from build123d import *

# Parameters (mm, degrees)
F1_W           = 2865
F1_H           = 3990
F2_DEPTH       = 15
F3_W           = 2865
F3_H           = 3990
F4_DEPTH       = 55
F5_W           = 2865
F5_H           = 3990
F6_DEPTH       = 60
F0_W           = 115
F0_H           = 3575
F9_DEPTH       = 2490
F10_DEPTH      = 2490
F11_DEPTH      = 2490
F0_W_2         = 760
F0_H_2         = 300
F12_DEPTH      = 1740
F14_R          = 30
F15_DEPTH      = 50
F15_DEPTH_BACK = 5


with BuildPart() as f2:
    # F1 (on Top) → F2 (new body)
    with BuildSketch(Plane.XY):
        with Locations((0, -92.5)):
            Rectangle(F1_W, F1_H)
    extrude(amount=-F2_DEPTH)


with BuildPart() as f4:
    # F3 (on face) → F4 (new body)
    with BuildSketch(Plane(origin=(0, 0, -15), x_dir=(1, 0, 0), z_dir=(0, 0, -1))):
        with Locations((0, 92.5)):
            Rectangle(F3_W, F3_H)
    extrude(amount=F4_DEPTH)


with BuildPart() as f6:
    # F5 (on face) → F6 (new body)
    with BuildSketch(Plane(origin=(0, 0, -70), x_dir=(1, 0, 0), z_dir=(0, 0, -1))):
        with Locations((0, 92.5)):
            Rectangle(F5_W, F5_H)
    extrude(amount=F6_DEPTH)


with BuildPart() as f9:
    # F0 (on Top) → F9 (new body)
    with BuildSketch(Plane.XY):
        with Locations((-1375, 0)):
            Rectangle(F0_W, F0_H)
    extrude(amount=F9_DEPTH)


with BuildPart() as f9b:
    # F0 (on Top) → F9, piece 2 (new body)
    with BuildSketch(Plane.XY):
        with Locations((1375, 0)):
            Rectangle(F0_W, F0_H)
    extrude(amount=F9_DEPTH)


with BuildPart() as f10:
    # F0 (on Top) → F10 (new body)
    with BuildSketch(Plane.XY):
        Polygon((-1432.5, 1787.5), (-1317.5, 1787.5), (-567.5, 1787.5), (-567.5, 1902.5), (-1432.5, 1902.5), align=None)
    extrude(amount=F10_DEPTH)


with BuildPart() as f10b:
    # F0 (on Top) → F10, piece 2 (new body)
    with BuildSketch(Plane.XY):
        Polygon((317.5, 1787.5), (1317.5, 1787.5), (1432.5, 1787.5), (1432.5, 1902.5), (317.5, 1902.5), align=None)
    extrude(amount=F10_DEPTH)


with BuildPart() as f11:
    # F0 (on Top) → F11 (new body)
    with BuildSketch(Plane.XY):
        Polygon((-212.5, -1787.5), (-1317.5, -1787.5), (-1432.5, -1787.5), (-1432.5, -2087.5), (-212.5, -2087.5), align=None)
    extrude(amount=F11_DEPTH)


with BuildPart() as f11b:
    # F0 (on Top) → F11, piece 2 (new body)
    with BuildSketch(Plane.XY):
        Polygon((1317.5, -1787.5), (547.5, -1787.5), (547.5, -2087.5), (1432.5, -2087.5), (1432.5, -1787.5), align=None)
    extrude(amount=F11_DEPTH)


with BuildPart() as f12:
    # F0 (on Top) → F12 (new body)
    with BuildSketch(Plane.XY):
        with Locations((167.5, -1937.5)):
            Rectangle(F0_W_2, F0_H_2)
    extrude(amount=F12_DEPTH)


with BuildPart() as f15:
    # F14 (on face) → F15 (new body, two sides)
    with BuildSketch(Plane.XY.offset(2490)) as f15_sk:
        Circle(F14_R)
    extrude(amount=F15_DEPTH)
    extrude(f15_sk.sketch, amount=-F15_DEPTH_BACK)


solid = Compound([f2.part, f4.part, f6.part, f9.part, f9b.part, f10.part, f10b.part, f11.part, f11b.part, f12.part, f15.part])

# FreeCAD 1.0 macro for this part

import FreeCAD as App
import Part
import Sketcher

V = App.Vector
Q = App.Units.Quantity


def add_polygon(sketch, points):
    """Adds a closed chain of lines whose ends are joined by coincident constraints."""
    first, n = sketch.GeometryCount, len(points)
    for a, b in zip(points, points[1:] + points[:1]):
        sketch.addGeometry(Part.LineSegment(App.Vector(*a, 0), App.Vector(*b, 0)), False)
    for i in range(n):
        sketch.addConstraint(Sketcher.Constraint("Coincident", first + i, 2, first + (i + 1) % n, 1))

doc = App.newDocument("Part")
params = doc.addObject("Spreadsheet::Sheet", "Params")
for row, (alias, value) in enumerate([
    ("sketch1_width", "2865 mm"),
    ("sketch1_height", "3990 mm"),
    ("pad1_length", "15 mm"),
    ("sketch2_width", "2865 mm"),
    ("sketch2_height", "3990 mm"),
    ("pad2_length", "55 mm"),
    ("sketch3_width", "2865 mm"),
    ("sketch3_height", "3990 mm"),
    ("pad3_length", "60 mm"),
    ("sketch4_width", "115 mm"),
    ("sketch4_height", "3575 mm"),
    ("pad4_length", "2490 mm"),
    ("sketch5_width", "115 mm"),
    ("sketch5_height", "3575 mm"),
    ("pad5_length", "2490 mm"),
    ("sketch6_width", "865 mm"),
    ("sketch6_height", "115 mm"),
    ("pad6_length", "2490 mm"),
    ("sketch7_width", "1115 mm"),
    ("sketch7_height", "115 mm"),
    ("pad7_length", "2490 mm"),
    ("sketch8_width", "1220 mm"),
    ("sketch8_height", "300 mm"),
    ("pad8_length", "2490 mm"),
    ("sketch9_width", "885 mm"),
    ("sketch9_height", "300 mm"),
    ("pad9_length", "2490 mm"),
    ("sketch10_width", "760 mm"),
    ("sketch10_height", "300 mm"),
    ("pad10_length", "1740 mm"),
    ("sketch11_diameter", "60 mm"),
    ("pad11_length", "50 mm"),
    ("pad11_length2", "5 mm"),
], start=1):
    params.set(f"A{row}", alias)
    params.set(f"B{row}", "=" + value)
    params.setAlias(f"B{row}", alias)

body = doc.addObject("PartDesign::Body", "Body")

sketch1 = body.newObject("Sketcher::SketchObject", "Sketch")
sketch1.AttachmentSupport = (doc.getObject("XY_Plane"), [""])
sketch1.MapMode = "FlatFace"
add_polygon(sketch1, [(-1432.5, 1902.5), (-1432.5, -2087.5), (1432.5, -2087.5), (1432.5, 1902.5)])
sketch1.addConstraint([
    Sketcher.Constraint("Vertical", 0),
    Sketcher.Constraint("Horizontal", 1),
    Sketcher.Constraint("Vertical", 2),
    Sketcher.Constraint("Horizontal", 3),
    Sketcher.Constraint("DistanceX", 1, 1, 1, 2, Q("2865 mm")),
    Sketcher.Constraint("DistanceY", 0, 2, 0, 1, Q("3990 mm")),
    Sketcher.Constraint("DistanceX", 0, 2, -1, 1, Q("1432.5 mm")),
    Sketcher.Constraint("DistanceY", 0, 2, -1, 1, Q("2087.5 mm")),
])
sketch1.setExpression("Constraints[8]", "Params.sketch1_width")
sketch1.setExpression("Constraints[9]", "Params.sketch1_height")
pad1 = body.newObject("PartDesign::Pad", "Pad")
pad1.Profile = sketch1
pad1.setExpression("Length", "Params.pad1_length")
pad1.Reversed = True
body2 = doc.addObject("PartDesign::Body", "Body001")

sketch2 = body2.newObject("Sketcher::SketchObject", "Sketch001")
sketch2.AttachmentSupport = (doc.getObject("XY_Plane001"), [""])
sketch2.MapMode = "FlatFace"
sketch2.AttachmentOffset = App.Placement(V(0, 0, -15), App.Rotation())
add_polygon(sketch2, [(-1432.5, -2087.5), (-1432.5, 1902.5), (1432.5, 1902.5), (1432.5, -2087.5)])
sketch2.addConstraint([
    Sketcher.Constraint("Vertical", 0),
    Sketcher.Constraint("Horizontal", 1),
    Sketcher.Constraint("Vertical", 2),
    Sketcher.Constraint("Horizontal", 3),
    Sketcher.Constraint("DistanceX", 1, 1, 1, 2, Q("2865 mm")),
    Sketcher.Constraint("DistanceY", 0, 1, 0, 2, Q("3990 mm")),
    Sketcher.Constraint("DistanceX", 0, 2, -1, 1, Q("1432.5 mm")),
    Sketcher.Constraint("DistanceY", -1, 1, 0, 2, Q("1902.5 mm")),
])
sketch2.setExpression("Constraints[8]", "Params.sketch2_width")
sketch2.setExpression("Constraints[9]", "Params.sketch2_height")
pad2 = body2.newObject("PartDesign::Pad", "Pad001")
pad2.Profile = sketch2
pad2.setExpression("Length", "Params.pad2_length")
pad2.Reversed = True
body3 = doc.addObject("PartDesign::Body", "Body002")

sketch3 = body3.newObject("Sketcher::SketchObject", "Sketch002")
sketch3.AttachmentSupport = (doc.getObject("XY_Plane002"), [""])
sketch3.MapMode = "FlatFace"
sketch3.AttachmentOffset = App.Placement(V(0, 0, -70), App.Rotation())
add_polygon(sketch3, [(-1432.5, -2087.5), (-1432.5, 1902.5), (1432.5, 1902.5), (1432.5, -2087.5)])
sketch3.addConstraint([
    Sketcher.Constraint("Vertical", 0),
    Sketcher.Constraint("Horizontal", 1),
    Sketcher.Constraint("Vertical", 2),
    Sketcher.Constraint("Horizontal", 3),
    Sketcher.Constraint("DistanceX", 1, 1, 1, 2, Q("2865 mm")),
    Sketcher.Constraint("DistanceY", 0, 1, 0, 2, Q("3990 mm")),
    Sketcher.Constraint("DistanceX", 0, 2, -1, 1, Q("1432.5 mm")),
    Sketcher.Constraint("DistanceY", -1, 1, 0, 2, Q("1902.5 mm")),
])
sketch3.setExpression("Constraints[8]", "Params.sketch3_width")
sketch3.setExpression("Constraints[9]", "Params.sketch3_height")
pad3 = body3.newObject("PartDesign::Pad", "Pad002")
pad3.Profile = sketch3
pad3.setExpression("Length", "Params.pad3_length")
pad3.Reversed = True
body4 = doc.addObject("PartDesign::Body", "Body003")

sketch4 = body4.newObject("Sketcher::SketchObject", "Sketch003")
sketch4.AttachmentSupport = (doc.getObject("XY_Plane003"), [""])
sketch4.MapMode = "FlatFace"
add_polygon(sketch4, [(-1432.5, 1787.5), (-1432.5, -1787.5), (-1317.5, -1787.5), (-1317.5, 1787.5)])
sketch4.addConstraint([
    Sketcher.Constraint("Vertical", 0),
    Sketcher.Constraint("Horizontal", 1),
    Sketcher.Constraint("Vertical", 2),
    Sketcher.Constraint("Horizontal", 3),
    Sketcher.Constraint("DistanceX", 1, 1, 1, 2, Q("115 mm")),
    Sketcher.Constraint("DistanceY", 0, 2, 0, 1, Q("3575 mm")),
    Sketcher.Constraint("DistanceX", 0, 2, -1, 1, Q("1432.5 mm")),
    Sketcher.Constraint("DistanceY", 0, 2, -1, 1, Q("1787.5 mm")),
])
sketch4.setExpression("Constraints[8]", "Params.sketch4_width")
sketch4.setExpression("Constraints[9]", "Params.sketch4_height")
pad4 = body4.newObject("PartDesign::Pad", "Pad003")
pad4.Profile = sketch4
pad4.setExpression("Length", "Params.pad4_length")
body5 = doc.addObject("PartDesign::Body", "Body004")

sketch5 = body5.newObject("Sketcher::SketchObject", "Sketch004")
sketch5.AttachmentSupport = (doc.getObject("XY_Plane004"), [""])
sketch5.MapMode = "FlatFace"
add_polygon(sketch5, [(1317.5, 1787.5), (1317.5, -1787.5), (1432.5, -1787.5), (1432.5, 1787.5)])
sketch5.addConstraint([
    Sketcher.Constraint("Vertical", 0),
    Sketcher.Constraint("Horizontal", 1),
    Sketcher.Constraint("Vertical", 2),
    Sketcher.Constraint("Horizontal", 3),
    Sketcher.Constraint("DistanceX", 1, 1, 1, 2, Q("115 mm")),
    Sketcher.Constraint("DistanceY", 0, 2, 0, 1, Q("3575 mm")),
    Sketcher.Constraint("DistanceX", -1, 1, 0, 2, Q("1317.5 mm")),
    Sketcher.Constraint("DistanceY", 0, 2, -1, 1, Q("1787.5 mm")),
])
sketch5.setExpression("Constraints[8]", "Params.sketch5_width")
sketch5.setExpression("Constraints[9]", "Params.sketch5_height")
pad5 = body5.newObject("PartDesign::Pad", "Pad004")
pad5.Profile = sketch5
pad5.setExpression("Length", "Params.pad5_length")
body6 = doc.addObject("PartDesign::Body", "Body005")

sketch6 = body6.newObject("Sketcher::SketchObject", "Sketch005")
sketch6.AttachmentSupport = (doc.getObject("XY_Plane005"), [""])
sketch6.MapMode = "FlatFace"
add_polygon(sketch6, [(-1432.5, 1787.5), (-567.5, 1787.5), (-567.5, 1902.5), (-1432.5, 1902.5)])
sketch6.addConstraint([
    Sketcher.Constraint("Horizontal", 0),
    Sketcher.Constraint("Vertical", 1),
    Sketcher.Constraint("Horizontal", 2),
    Sketcher.Constraint("Vertical", 3),
    Sketcher.Constraint("DistanceX", 0, 1, 0, 2, Q("865 mm")),
    Sketcher.Constraint("DistanceY", 1, 1, 1, 2, Q("115 mm")),
    Sketcher.Constraint("DistanceX", 0, 2, -1, 1, Q("567.5 mm")),
    Sketcher.Constraint("DistanceY", -1, 1, 0, 2, Q("1787.5 mm")),
])
sketch6.setExpression("Constraints[8]", "Params.sketch6_width")
sketch6.setExpression("Constraints[9]", "Params.sketch6_height")
pad6 = body6.newObject("PartDesign::Pad", "Pad005")
pad6.Profile = sketch6
pad6.setExpression("Length", "Params.pad6_length")
body7 = doc.addObject("PartDesign::Body", "Body006")

sketch7 = body7.newObject("Sketcher::SketchObject", "Sketch006")
sketch7.AttachmentSupport = (doc.getObject("XY_Plane006"), [""])
sketch7.MapMode = "FlatFace"
add_polygon(sketch7, [(317.5, 1787.5), (1432.5, 1787.5), (1432.5, 1902.5), (317.5, 1902.5)])
sketch7.addConstraint([
    Sketcher.Constraint("Horizontal", 0),
    Sketcher.Constraint("Vertical", 1),
    Sketcher.Constraint("Horizontal", 2),
    Sketcher.Constraint("Vertical", 3),
    Sketcher.Constraint("DistanceX", 0, 1, 0, 2, Q("1115 mm")),
    Sketcher.Constraint("DistanceY", 1, 1, 1, 2, Q("115 mm")),
    Sketcher.Constraint("DistanceX", -1, 1, 0, 2, Q("1432.5 mm")),
    Sketcher.Constraint("DistanceY", -1, 1, 0, 2, Q("1787.5 mm")),
])
sketch7.setExpression("Constraints[8]", "Params.sketch7_width")
sketch7.setExpression("Constraints[9]", "Params.sketch7_height")
pad7 = body7.newObject("PartDesign::Pad", "Pad006")
pad7.Profile = sketch7
pad7.setExpression("Length", "Params.pad7_length")
body8 = doc.addObject("PartDesign::Body", "Body007")

sketch8 = body8.newObject("Sketcher::SketchObject", "Sketch007")
sketch8.AttachmentSupport = (doc.getObject("XY_Plane007"), [""])
sketch8.MapMode = "FlatFace"
add_polygon(sketch8, [(-212.5, -1787.5), (-1432.5, -1787.5), (-1432.5, -2087.5), (-212.5, -2087.5)])
sketch8.addConstraint([
    Sketcher.Constraint("Horizontal", 0),
    Sketcher.Constraint("Vertical", 1),
    Sketcher.Constraint("Horizontal", 2),
    Sketcher.Constraint("Vertical", 3),
    Sketcher.Constraint("DistanceX", 0, 2, 0, 1, Q("1220 mm")),
    Sketcher.Constraint("DistanceY", 1, 2, 1, 1, Q("300 mm")),
    Sketcher.Constraint("DistanceX", 0, 2, -1, 1, Q("1432.5 mm")),
    Sketcher.Constraint("DistanceY", 0, 2, -1, 1, Q("1787.5 mm")),
])
sketch8.setExpression("Constraints[8]", "Params.sketch8_width")
sketch8.setExpression("Constraints[9]", "Params.sketch8_height")
pad8 = body8.newObject("PartDesign::Pad", "Pad007")
pad8.Profile = sketch8
pad8.setExpression("Length", "Params.pad8_length")
body9 = doc.addObject("PartDesign::Body", "Body008")

sketch9 = body9.newObject("Sketcher::SketchObject", "Sketch008")
sketch9.AttachmentSupport = (doc.getObject("XY_Plane008"), [""])
sketch9.MapMode = "FlatFace"
add_polygon(sketch9, [(547.5, -1787.5), (547.5, -2087.5), (1432.5, -2087.5), (1432.5, -1787.5)])
sketch9.addConstraint([
    Sketcher.Constraint("Vertical", 0),
    Sketcher.Constraint("Horizontal", 1),
    Sketcher.Constraint("Vertical", 2),
    Sketcher.Constraint("Horizontal", 3),
    Sketcher.Constraint("DistanceX", 1, 1, 1, 2, Q("885 mm")),
    Sketcher.Constraint("DistanceY", 0, 2, 0, 1, Q("300 mm")),
    Sketcher.Constraint("DistanceX", -1, 1, 0, 2, Q("547.5 mm")),
    Sketcher.Constraint("DistanceY", 0, 2, -1, 1, Q("2087.5 mm")),
])
sketch9.setExpression("Constraints[8]", "Params.sketch9_width")
sketch9.setExpression("Constraints[9]", "Params.sketch9_height")
pad9 = body9.newObject("PartDesign::Pad", "Pad008")
pad9.Profile = sketch9
pad9.setExpression("Length", "Params.pad9_length")
body10 = doc.addObject("PartDesign::Body", "Body009")

sketch10 = body10.newObject("Sketcher::SketchObject", "Sketch009")
sketch10.AttachmentSupport = (doc.getObject("XY_Plane009"), [""])
sketch10.MapMode = "FlatFace"
add_polygon(sketch10, [(-212.5, -1787.5), (-212.5, -2087.5), (547.5, -2087.5), (547.5, -1787.5)])
sketch10.addConstraint([
    Sketcher.Constraint("Vertical", 0),
    Sketcher.Constraint("Horizontal", 1),
    Sketcher.Constraint("Vertical", 2),
    Sketcher.Constraint("Horizontal", 3),
    Sketcher.Constraint("DistanceX", 1, 1, 1, 2, Q("760 mm")),
    Sketcher.Constraint("DistanceY", 0, 2, 0, 1, Q("300 mm")),
    Sketcher.Constraint("DistanceX", 0, 2, -1, 1, Q("212.5 mm")),
    Sketcher.Constraint("DistanceY", 0, 2, -1, 1, Q("2087.5 mm")),
])
sketch10.setExpression("Constraints[8]", "Params.sketch10_width")
sketch10.setExpression("Constraints[9]", "Params.sketch10_height")
pad10 = body10.newObject("PartDesign::Pad", "Pad009")
pad10.Profile = sketch10
pad10.setExpression("Length", "Params.pad10_length")
body11 = doc.addObject("PartDesign::Body", "Body010")

sketch11 = body11.newObject("Sketcher::SketchObject", "Sketch010")
sketch11.AttachmentSupport = (doc.getObject("XY_Plane010"), [""])
sketch11.MapMode = "FlatFace"
sketch11.AttachmentOffset = App.Placement(V(0, 0, 2490), App.Rotation())
sketch11.addGeometry(Part.Circle(V(0, 0, 0), V(0, 0, 1), 30), False)
sketch11.addConstraint([
    Sketcher.Constraint("Coincident", 0, 3, -1, 1),
    Sketcher.Constraint("Diameter", 0, Q("60 mm")),
])
sketch11.setExpression("Constraints[1]", "Params.sketch11_diameter")
pad11 = body11.newObject("PartDesign::Pad", "Pad010")
pad11.Profile = sketch11
pad11.Type = "TwoLengths"
pad11.setExpression("Length", "Params.pad11_length")
pad11.setExpression("Length2", "Params.pad11_length2")

doc.recompute()
